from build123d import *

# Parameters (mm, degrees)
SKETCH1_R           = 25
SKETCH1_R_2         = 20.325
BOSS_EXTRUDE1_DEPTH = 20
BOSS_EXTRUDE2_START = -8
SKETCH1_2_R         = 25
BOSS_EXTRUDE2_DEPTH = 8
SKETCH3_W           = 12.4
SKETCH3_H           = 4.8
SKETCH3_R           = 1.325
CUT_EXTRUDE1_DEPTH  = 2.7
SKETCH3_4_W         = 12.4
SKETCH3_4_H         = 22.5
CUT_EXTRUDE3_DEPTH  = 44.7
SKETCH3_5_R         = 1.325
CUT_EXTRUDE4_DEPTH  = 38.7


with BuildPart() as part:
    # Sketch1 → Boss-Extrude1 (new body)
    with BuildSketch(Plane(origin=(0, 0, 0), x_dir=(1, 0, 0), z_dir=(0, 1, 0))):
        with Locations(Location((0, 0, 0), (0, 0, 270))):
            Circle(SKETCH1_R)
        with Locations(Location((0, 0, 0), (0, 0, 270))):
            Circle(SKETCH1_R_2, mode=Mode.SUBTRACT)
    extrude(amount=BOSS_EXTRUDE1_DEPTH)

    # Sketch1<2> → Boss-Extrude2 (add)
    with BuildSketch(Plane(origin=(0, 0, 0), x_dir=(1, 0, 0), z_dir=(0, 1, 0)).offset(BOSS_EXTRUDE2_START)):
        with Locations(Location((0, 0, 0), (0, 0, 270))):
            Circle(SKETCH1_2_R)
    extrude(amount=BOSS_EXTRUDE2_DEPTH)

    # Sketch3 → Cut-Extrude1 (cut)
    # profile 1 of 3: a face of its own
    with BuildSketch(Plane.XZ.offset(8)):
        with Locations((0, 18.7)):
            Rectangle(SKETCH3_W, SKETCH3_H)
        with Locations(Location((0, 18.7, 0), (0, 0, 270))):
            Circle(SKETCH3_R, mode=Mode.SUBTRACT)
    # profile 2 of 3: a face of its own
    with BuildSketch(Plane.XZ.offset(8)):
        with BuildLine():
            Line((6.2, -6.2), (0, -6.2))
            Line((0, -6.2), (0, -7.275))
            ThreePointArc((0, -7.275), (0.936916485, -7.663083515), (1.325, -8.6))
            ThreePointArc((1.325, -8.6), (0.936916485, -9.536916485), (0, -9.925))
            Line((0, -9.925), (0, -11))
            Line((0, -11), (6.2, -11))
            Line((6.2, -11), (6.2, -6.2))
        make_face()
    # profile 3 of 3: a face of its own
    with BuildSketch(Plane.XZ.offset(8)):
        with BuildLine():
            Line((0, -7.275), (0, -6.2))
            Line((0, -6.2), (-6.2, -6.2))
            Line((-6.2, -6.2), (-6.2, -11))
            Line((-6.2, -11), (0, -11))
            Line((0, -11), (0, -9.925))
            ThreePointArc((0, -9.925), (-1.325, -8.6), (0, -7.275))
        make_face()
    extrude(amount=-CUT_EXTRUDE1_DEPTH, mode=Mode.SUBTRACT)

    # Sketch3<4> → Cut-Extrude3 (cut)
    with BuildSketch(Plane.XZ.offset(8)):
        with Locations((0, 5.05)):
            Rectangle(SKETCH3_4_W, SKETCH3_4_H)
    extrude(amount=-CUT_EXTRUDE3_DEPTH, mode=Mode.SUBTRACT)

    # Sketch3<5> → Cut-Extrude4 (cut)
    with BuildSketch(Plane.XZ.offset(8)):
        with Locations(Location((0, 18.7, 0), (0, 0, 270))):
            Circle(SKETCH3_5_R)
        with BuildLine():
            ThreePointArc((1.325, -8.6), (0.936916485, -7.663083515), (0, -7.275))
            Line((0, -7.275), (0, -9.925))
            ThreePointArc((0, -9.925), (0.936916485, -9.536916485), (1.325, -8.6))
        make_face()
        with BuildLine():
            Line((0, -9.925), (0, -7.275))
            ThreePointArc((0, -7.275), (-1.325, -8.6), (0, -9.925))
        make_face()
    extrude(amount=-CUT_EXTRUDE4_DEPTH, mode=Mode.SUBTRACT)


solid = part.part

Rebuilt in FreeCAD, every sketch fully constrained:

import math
import FreeCAD as App
import Part
import Sketcher

V = App.Vector
Q = App.Units.Quantity

doc = App.newDocument("Part")
body = doc.addObject("PartDesign::Body", "Body")

# Sketch on XZ plane
sketch1 = body.newObject("Sketcher::SketchObject", "Sketch")
sketch1.AttachmentSupport = (doc.getObject("XZ_Plane"), [""])
sketch1.MapMode = "FlatFace"
sketch1.addGeometry([
    Part.Circle(V(0, 0, 0), V(0, 0, 1), 25),
    Part.Circle(V(0, 0, 0), V(0, 0, 1), 20),
], False)
sketch1.addConstraint([
    Sketcher.Constraint("Coincident", 0, 3, -1, 1),
    Sketcher.Constraint("Coincident", 1, 3, -1, 1),
    Sketcher.Constraint("Diameter", 0, Q("50 mm")),
    Sketcher.Constraint("Diameter", 1, Q("40.65 mm")),
])
pad1 = body.newObject("PartDesign::Pad", "Pad")
pad1.Profile = sketch1
pad1.Length = 20
pad1.Reversed = True

# Sketch on XZ plane
sketch2 = body.newObject("Sketcher::SketchObject", "Sketch001")
sketch2.AttachmentSupport = (doc.getObject("XZ_Plane"), [""])
sketch2.MapMode = "FlatFace"
sketch2.AttachmentOffset = App.Placement(V(0, 0, 8), App.Rotation())
sketch2.addGeometry(Part.Circle(V(0, 0, 0), V(0, 0, 1), 25), False)
sketch2.addConstraint([
    Sketcher.Constraint("Coincident", 0, 3, -1, 1),
    Sketcher.Constraint("Diameter", 0, Q("50 mm")),
])
pad2 = body.newObject("PartDesign::Pad", "Pad001")
pad2.Profile = sketch2
pad2.Length = 8
pad2.Reversed = True

# Sketch on XZ plane
sketch3 = body.newObject("Sketcher::SketchObject", "Sketch002")
sketch3.AttachmentSupport = (doc.getObject("XZ_Plane"), [""])
sketch3.MapMode = "FlatFace"
sketch3.AttachmentOffset = App.Placement(V(0, 0, 8), App.Rotation())
sketch3.addGeometry([
    Part.LineSegment(V(-6.2, 21.1, 0), V(-6.2, 16.3, 0)),  # 0
    Part.LineSegment(V(-6.2, 16.3, 0), V(6.2, 16.3, 0)),  # 1
    Part.LineSegment(V(6.2, 16.3, 0), V(6.2, 21.1, 0)),  # 2
    Part.LineSegment(V(6.2, 21.1, 0), V(-6.2, 21.1, 0)),  # 3
    Part.Circle(V(0, 18.7, 0), V(0, 0, 1), 1.3),  # 4
    Part.LineSegment(V(6.2, -6.2, 0), V(-6.2, -6.2, 0)),  # 5
    Part.LineSegment(V(-6.2, -6.2, 0), V(-6.2, -11, 0)),  # 6
    Part.LineSegment(V(-6.2, -11, 0), V(6.2, -11, 0)),  # 7
    Part.LineSegment(V(6.2, -11, 0), V(6.2, -6.2, 0)),  # 8
    Part.ArcOfCircle(Part.Circle(V(0, -8.6, 0), V(0, 0, 1), 1.3), math.radians(0), math.radians(90)),  # 9
    Part.ArcOfCircle(Part.Circle(V(0, -8.6, 0), V(0, 0, 1), 1.3), math.radians(-90), math.radians(0)),  # 10
    Part.ArcOfCircle(Part.Circle(V(0, -8.6, 0), V(0, 0, 1), 1.3), math.radians(90), math.radians(270)),  # 11
], False)
sketch3.addConstraint([
    Sketcher.Constraint("Coincident", 0, 2, 1, 1),
    Sketcher.Constraint("Coincident", 1, 2, 2, 1),
    Sketcher.Constraint("Coincident", 2, 2, 3, 1),
    Sketcher.Constraint("Coincident", 3, 2, 0, 1),
    Sketcher.Constraint("Coincident", 5, 2, 6, 1),
    Sketcher.Constraint("Coincident", 6, 2, 7, 1),
    Sketcher.Constraint("Coincident", 7, 2, 8, 1),
    Sketcher.Constraint("Coincident", 8, 2, 5, 1),
    Sketcher.Constraint("Tangent", 9, 1, 10, 2),
    Sketcher.Constraint("Tangent", 10, 1, 11, 2),
    Sketcher.Constraint("Tangent", 11, 1, 9, 2),
    Sketcher.Constraint("Vertical", 0),
    Sketcher.Constraint("Horizontal", 1),
    Sketcher.Constraint("Vertical", 2),
    Sketcher.Constraint("Horizontal", 3),
    Sketcher.Constraint("Horizontal", 5),
    Sketcher.Constraint("Vertical", 6),
    Sketcher.Constraint("Horizontal", 7),
    Sketcher.Constraint("Vertical", 8),
    Sketcher.Constraint("Equal", 4, 9),
    Sketcher.Constraint("PointOnObject", 4, 3, -2),
    Sketcher.Constraint("PointOnObject", 9, 3, -2),
    Sketcher.Constraint("PointOnObject", 10, 1, -2),
    Sketcher.Constraint("PointOnObject", 11, 1, -2),
    Sketcher.Constraint("Horizontal", 11, 3, 9, 1),
    Sketcher.Constraint("Vertical", 3, 2, 5, 2),
    Sketcher.Constraint("Vertical", 2, 2, 7, 2),
    Sketcher.Constraint("Equal", 2, 6),
    Sketcher.Constraint("Diameter", 4, Q("2.65 mm")),
    Sketcher.Constraint("DistanceX", 1, 1, 1, 2, Q("12.4 mm")),
    Sketcher.Constraint("DistanceY", 0, 2, 0, 1, Q("4.8 mm")),
    Sketcher.Constraint("DistanceY", 6, 2, -1, 1, Q("11 mm")),
    Sketcher.Constraint("DistanceY", -1, 1, 4, 3, Q("18.7 mm")),
    Sketcher.Constraint("DistanceY", 9, 3, -1, 1, Q("8.6 mm")),
    Sketcher.Constraint("DistanceX", 0, 2, -1, 1, Q("6.2 mm")),
    Sketcher.Constraint("DistanceY", -1, 1, 0, 2, Q("16.3 mm")),
])
pocket1 = body.newObject("PartDesign::Pocket", "Pocket")
pocket1.Profile = sketch3
pocket1.Length = 2.7

# Sketch on XZ plane
sketch4 = body.newObject("Sketcher::SketchObject", "Sketch003")
sketch4.AttachmentSupport = (doc.getObject("XZ_Plane"), [""])
sketch4.MapMode = "FlatFace"
sketch4.AttachmentOffset = App.Placement(V(0, 0, 8), App.Rotation())
sketch4.addGeometry([
    Part.LineSegment(V(-6, 16, 0), V(-6, -6, 0)),
    Part.LineSegment(V(-6, -6, 0), V(6, -6, 0)),
    Part.LineSegment(V(6, -6, 0), V(6, 16, 0)),
    Part.LineSegment(V(6, 16, 0), V(-6, 16, 0)),
], False)
sketch4.addConstraint([
    Sketcher.Constraint("Coincident", 0, 2, 1, 1),
    Sketcher.Constraint("Coincident", 1, 2, 2, 1),
    Sketcher.Constraint("Coincident", 2, 2, 3, 1),
    Sketcher.Constraint("Coincident", 3, 2, 0, 1),
    Sketcher.Constraint("Vertical", 0),
    Sketcher.Constraint("Horizontal", 1),
    Sketcher.Constraint("Vertical", 2),
    Sketcher.Constraint("Horizontal", 3),
    Sketcher.Constraint("DistanceX", 1, 1, 1, 2, Q("12.4 mm")),
    Sketcher.Constraint("DistanceY", 0, 2, 0, 1, Q("22.5 mm")),
    Sketcher.Constraint("DistanceX", 0, 2, -1, 1, Q("6.2 mm")),
    Sketcher.Constraint("DistanceY", 0, 2, -1, 1, Q("6.2 mm")),
])
pocket2 = body.newObject("PartDesign::Pocket", "Pocket001")
pocket2.Profile = sketch4
pocket2.Length = 44.7

# Sketch on XZ plane
sketch5 = body.newObject("Sketcher::SketchObject", "Sketch004")
sketch5.AttachmentSupport = (doc.getObject("XZ_Plane"), [""])
sketch5.MapMode = "FlatFace"
sketch5.AttachmentOffset = App.Placement(V(0, 0, 8), App.Rotation())
sketch5.addGeometry([
    Part.Circle(V(0, 18.7, 0), V(0, 0, 1), 1.3),
    Part.ArcOfCircle(Part.Circle(V(0, -8.6, 0), V(0, 0, 1), 1.3), math.radians(0), math.radians(90)),
    Part.ArcOfCircle(Part.Circle(V(0, -8.6, 0), V(0, 0, 1), 1.3), math.radians(90), math.radians(270)),
    Part.ArcOfCircle(Part.Circle(V(0, -8.6, 0), V(0, 0, 1), 1.3), math.radians(-90), math.radians(0)),
], False)
sketch5.addConstraint([
    Sketcher.Constraint("Tangent", 1, 2, 2, 1),
    Sketcher.Constraint("Tangent", 2, 2, 3, 1),
    Sketcher.Constraint("Tangent", 3, 2, 1, 1),
    Sketcher.Constraint("Equal", 0, 1),
    Sketcher.Constraint("PointOnObject", 0, 3, -2),
    Sketcher.Constraint("PointOnObject", 1, 3, -2),
    Sketcher.Constraint("PointOnObject", 1, 2, -2),
    Sketcher.Constraint("PointOnObject", 2, 2, -2),
    Sketcher.Constraint("Horizontal", 2, 3, 3, 2),
    Sketcher.Constraint("Diameter", 0, Q("2.65 mm")),
    Sketcher.Constraint("DistanceY", -1, 1, 0, 3, Q("18.7 mm")),
    Sketcher.Constraint("DistanceY", 1, 3, -1, 1, Q("8.6 mm")),
])
pocket3 = body.newObject("PartDesign::Pocket", "Pocket002")
pocket3.Profile = sketch5
pocket3.Length = 38.7

doc.recompute()
